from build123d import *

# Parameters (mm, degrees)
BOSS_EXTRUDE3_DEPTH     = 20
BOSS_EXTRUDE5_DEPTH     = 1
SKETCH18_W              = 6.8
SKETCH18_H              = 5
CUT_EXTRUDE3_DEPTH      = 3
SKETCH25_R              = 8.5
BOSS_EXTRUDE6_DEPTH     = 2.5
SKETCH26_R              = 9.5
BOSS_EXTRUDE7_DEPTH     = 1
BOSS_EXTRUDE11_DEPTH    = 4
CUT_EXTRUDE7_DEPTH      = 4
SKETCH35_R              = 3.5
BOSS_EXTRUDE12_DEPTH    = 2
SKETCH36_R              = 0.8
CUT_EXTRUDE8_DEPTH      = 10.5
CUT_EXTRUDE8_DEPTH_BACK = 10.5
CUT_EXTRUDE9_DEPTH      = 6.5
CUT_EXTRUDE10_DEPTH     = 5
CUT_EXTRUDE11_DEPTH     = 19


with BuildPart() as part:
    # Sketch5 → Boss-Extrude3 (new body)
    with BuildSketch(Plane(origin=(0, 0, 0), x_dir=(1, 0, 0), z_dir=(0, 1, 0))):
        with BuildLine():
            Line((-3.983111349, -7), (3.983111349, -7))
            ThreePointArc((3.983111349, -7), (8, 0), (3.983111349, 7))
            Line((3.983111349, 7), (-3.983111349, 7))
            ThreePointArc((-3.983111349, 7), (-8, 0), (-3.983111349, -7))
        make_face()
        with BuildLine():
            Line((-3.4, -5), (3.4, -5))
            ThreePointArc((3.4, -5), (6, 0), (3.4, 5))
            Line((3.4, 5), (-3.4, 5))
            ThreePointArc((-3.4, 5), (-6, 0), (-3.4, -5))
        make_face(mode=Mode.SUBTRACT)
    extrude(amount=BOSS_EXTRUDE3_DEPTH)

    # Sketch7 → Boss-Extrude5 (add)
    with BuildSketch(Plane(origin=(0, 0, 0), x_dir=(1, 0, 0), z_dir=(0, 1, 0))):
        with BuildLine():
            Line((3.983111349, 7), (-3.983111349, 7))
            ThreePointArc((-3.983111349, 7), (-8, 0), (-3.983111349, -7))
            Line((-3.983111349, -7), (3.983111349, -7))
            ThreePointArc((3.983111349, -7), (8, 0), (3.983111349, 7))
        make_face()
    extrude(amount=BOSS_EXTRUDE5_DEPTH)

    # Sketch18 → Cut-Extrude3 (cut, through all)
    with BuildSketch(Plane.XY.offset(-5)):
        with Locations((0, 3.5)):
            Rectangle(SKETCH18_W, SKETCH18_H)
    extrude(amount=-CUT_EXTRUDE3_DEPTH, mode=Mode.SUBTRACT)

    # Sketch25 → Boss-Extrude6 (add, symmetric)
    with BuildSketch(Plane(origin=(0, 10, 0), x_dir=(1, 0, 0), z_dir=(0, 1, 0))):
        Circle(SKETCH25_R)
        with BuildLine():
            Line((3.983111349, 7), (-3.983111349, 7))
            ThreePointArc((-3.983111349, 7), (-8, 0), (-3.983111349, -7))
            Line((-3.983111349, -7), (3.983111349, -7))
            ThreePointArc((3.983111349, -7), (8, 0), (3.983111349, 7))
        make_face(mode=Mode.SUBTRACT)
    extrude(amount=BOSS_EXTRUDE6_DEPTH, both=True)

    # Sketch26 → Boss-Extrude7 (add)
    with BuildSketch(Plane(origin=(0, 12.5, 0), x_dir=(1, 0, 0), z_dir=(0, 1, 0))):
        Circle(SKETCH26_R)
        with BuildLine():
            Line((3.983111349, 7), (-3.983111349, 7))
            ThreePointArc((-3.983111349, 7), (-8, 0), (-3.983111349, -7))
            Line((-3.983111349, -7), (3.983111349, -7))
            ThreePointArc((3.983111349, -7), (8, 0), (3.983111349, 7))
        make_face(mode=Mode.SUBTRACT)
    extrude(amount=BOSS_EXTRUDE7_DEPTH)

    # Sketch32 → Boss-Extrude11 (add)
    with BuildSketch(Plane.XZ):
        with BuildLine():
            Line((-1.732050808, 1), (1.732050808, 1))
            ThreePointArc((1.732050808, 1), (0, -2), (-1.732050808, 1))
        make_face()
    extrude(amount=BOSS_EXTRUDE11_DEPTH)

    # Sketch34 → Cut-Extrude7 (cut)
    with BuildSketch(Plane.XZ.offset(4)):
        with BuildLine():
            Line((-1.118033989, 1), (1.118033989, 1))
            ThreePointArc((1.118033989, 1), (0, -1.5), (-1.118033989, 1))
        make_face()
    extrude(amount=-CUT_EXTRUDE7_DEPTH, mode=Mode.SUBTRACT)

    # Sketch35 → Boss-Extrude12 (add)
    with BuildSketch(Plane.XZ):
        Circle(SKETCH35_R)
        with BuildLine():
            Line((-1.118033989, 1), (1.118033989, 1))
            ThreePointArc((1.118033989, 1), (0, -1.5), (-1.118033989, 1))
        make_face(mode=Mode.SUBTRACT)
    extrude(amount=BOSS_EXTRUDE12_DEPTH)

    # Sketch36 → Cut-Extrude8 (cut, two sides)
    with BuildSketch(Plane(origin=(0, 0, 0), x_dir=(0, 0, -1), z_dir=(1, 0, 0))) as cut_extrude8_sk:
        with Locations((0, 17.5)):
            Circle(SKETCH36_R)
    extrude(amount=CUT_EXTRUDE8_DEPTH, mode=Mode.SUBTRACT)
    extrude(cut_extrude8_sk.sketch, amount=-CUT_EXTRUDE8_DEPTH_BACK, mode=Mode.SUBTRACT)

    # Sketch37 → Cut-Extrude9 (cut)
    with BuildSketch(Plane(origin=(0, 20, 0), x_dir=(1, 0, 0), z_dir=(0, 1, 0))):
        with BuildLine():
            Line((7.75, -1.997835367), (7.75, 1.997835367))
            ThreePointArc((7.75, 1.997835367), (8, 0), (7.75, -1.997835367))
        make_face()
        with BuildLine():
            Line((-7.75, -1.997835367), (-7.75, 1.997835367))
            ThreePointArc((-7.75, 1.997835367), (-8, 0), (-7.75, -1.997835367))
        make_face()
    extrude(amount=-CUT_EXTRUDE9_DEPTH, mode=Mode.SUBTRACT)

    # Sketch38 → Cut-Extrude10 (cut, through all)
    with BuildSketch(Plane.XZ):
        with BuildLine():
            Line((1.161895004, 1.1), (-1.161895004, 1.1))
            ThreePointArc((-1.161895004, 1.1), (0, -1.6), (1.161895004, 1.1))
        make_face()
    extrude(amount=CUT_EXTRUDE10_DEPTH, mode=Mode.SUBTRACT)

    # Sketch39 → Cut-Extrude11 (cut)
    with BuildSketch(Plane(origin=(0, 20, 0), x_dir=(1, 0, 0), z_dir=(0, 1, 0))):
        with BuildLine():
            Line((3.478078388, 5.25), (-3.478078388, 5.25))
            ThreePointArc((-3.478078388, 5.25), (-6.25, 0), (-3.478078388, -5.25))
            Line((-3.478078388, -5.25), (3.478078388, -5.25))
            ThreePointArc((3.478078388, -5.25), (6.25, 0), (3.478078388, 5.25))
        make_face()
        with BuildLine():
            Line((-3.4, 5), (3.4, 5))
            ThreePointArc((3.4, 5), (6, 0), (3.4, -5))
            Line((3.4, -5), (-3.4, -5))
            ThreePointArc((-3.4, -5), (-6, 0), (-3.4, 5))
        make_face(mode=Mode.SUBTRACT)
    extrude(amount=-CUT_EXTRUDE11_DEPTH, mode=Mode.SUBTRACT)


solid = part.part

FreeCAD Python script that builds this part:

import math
import FreeCAD as App
import Part
import Sketcher

doc = App.newDocument("Part")
params = doc.addObject("Spreadsheet::Sheet", "Params")
for row, (alias, value) in enumerate([
    ("sketch1_width", "6.8 mm"),
    ("pad1_length", "20 mm"),
    ("pad2_length", "1 mm"),
    ("sketch3_height", "5 mm"),
    ("sketch3_width", "6.8 mm"),
    ("sketch4_diameter", "17 mm"),
    ("pad3_length", "5 mm"),
    ("sketch5_diameter", "19 mm"),
    ("pad4_length", "1 mm"),
    ("sketch6_radius", "2 mm"),
    ("pad5_length", "4 mm"),
    ("sketch7_radius", "1.5 mm"),
    ("pocket2_length", "4 mm"),
    ("sketch8_diameter", "7 mm"),
    ("sketch8_radius", "1.5 mm"),
    ("pad6_length", "2 mm"),
    ("sketch9_diameter", "1.6 mm"),
    ("pocket4_length", "6.5 mm"),
    ("sketch11_radius", "1.6 mm"),
    ("sketch12_width", "6.8 mm"),
    ("pocket6_length", "19 mm"),
], start=1):
    params.set(f"A{row}", alias)
    params.set(f"B{row}", "=" + value)
    params.setAlias(f"B{row}", alias)

body = doc.addObject("PartDesign::Body", "Body")

# Sketch on XZ plane
sketch1 = body.newObject("Sketcher::SketchObject", "Sketch")
sketch1.AttachmentSupport = (doc.getObject("XZ_Plane"), [""])
sketch1.MapMode = "FlatFace"
sketch1.addGeometry([
    Part.LineSegment(App.Vector(-3.983111, 7, 0), App.Vector(3.983111, 7, 0)),  # 0
    Part.ArcOfCircle(Part.Circle(App.Vector(-0.107692, 0, 0), App.Vector(0, 0, 1), 8.107692), math.radians(-59.697963), math.radians(59.697963)),  # 1
    Part.LineSegment(App.Vector(3.983111, -7, 0), App.Vector(-3.983111, -7, 0)),  # 2
    Part.ArcOfCircle(Part.Circle(App.Vector(0.107692, 0, 0), App.Vector(0, 0, 1), 8.107692), math.radians(120.302037), math.radians(239.697963)),  # 3
    Part.LineSegment(App.Vector(3.4, 5, 0), App.Vector(-3.4, 5, 0)),  # 4
    Part.ArcOfCircle(Part.Circle(App.Vector(0.107692, 0, 0), App.Vector(0, 0, 1), 6.107692), math.radians(125.051137), math.radians(234.948863)),  # 5
    Part.LineSegment(App.Vector(-3.4, -5, 0), App.Vector(3.4, -5, 0)),  # 6
    Part.ArcOfCircle(Part.Circle(App.Vector(-0.107692, 0, 0), App.Vector(0, 0, 1), 6.107692), math.radians(-54.948863), math.radians(54.948863)),  # 7
], False)
sketch1.addConstraint([
    Sketcher.Constraint("Coincident", 0, 2, 1, 2),
    Sketcher.Constraint("Coincident", 1, 1, 2, 1),
    Sketcher.Constraint("Coincident", 2, 2, 3, 2),
    Sketcher.Constraint("Coincident", 3, 1, 0, 1),
    Sketcher.Constraint("Coincident", 4, 2, 5, 1),
    Sketcher.Constraint("Coincident", 5, 2, 6, 1),
    Sketcher.Constraint("Coincident", 6, 2, 7, 1),
    Sketcher.Constraint("Coincident", 7, 2, 4, 1),
    Sketcher.Constraint("Horizontal", 0),
    Sketcher.Constraint("Horizontal", 2),
    Sketcher.Constraint("Horizontal", 4),
    Sketcher.Constraint("Horizontal", 6),
    Sketcher.Constraint("Coincident", 5, 3, 3, 3),
    Sketcher.Constraint("Coincident", 7, 3, 1, 3),
    Sketcher.Constraint("Equal", 1, 3),
    Sketcher.Constraint("Equal", 5, 7),
    Sketcher.Constraint("Symmetric", 1, 3, 3, 3, -1, 1),
    Sketcher.Constraint("Symmetric", 0, 2, 1, 1, -1),
    Sketcher.Constraint("Vertical", 4, 2, 5, 2),
    Sketcher.Constraint("DistanceX", 4, 2, 4, 1, 6.8),
    Sketcher.Constraint("DistanceY", -1, 1, 0, 2, 7.0),
    Sketcher.Constraint("DistanceY", -1, 1, 4, 2, 5.0),
    Sketcher.Constraint("Radius", 1, 8.107692),
    Sketcher.Constraint("Radius", 5, 6.107692),
])
sketch1.setExpression("Constraints[19]", "Params.sketch1_width")
pad1 = body.newObject("PartDesign::Pad", "Pad")
pad1.Profile = sketch1
pad1.setExpression("Length", "Params.pad1_length")
pad1.Reversed = True

# Sketch on XZ plane
sketch2 = body.newObject("Sketcher::SketchObject", "Sketch001")
sketch2.AttachmentSupport = (doc.getObject("XZ_Plane"), [""])
sketch2.MapMode = "FlatFace"
sketch2.addGeometry([
    Part.LineSegment(App.Vector(3.983111, -7, 0), App.Vector(-3.983111, -7, 0)),
    Part.ArcOfCircle(Part.Circle(App.Vector(0.107692, 0, 0), App.Vector(0, 0, 1), 8.107692), math.radians(120.302037), math.radians(239.697963)),
    Part.LineSegment(App.Vector(-3.983111, 7, 0), App.Vector(3.983111, 7, 0)),
    Part.ArcOfCircle(Part.Circle(App.Vector(-0.107692, 0, 0), App.Vector(0, 0, 1), 8.107692), math.radians(-59.697963), math.radians(59.697963)),
], False)
sketch2.addConstraint([
    Sketcher.Constraint("Coincident", 0, 2, 1, 2),
    Sketcher.Constraint("Coincident", 1, 1, 2, 1),
    Sketcher.Constraint("Coincident", 2, 2, 3, 2),
    Sketcher.Constraint("Coincident", 3, 1, 0, 1),
    Sketcher.Constraint("Horizontal", 0),
    Sketcher.Constraint("Horizontal", 2),
    Sketcher.Constraint("Equal", 1, 3),
    Sketcher.Constraint("Symmetric", 1, 3, 3, 3, -1, 1),
    Sketcher.Constraint("Symmetric", 0, 2, 1, 1, -1),
    Sketcher.Constraint("DistanceY", 0, 2, -1, 1, 7.0),
    Sketcher.Constraint("Radius", 1, 8.107692),
    Sketcher.Constraint("DistanceX", 0, 2, 0, 1, 7.966223),
])
pad2 = body.newObject("PartDesign::Pad", "Pad001")
pad2.Profile = sketch2
pad2.setExpression("Length", "Params.pad2_length")
pad2.Reversed = True

# Sketch on XY plane
sketch3 = body.newObject("Sketcher::SketchObject", "Sketch002")
sketch3.AttachmentSupport = (doc.getObject("XY_Plane"), [""])
sketch3.MapMode = "FlatFace"
sketch3.AttachmentOffset = App.Placement(App.Vector(0, 0, -5), App.Rotation())
sketch3.addGeometry([
    Part.LineSegment(App.Vector(-3.4, 6, 0), App.Vector(-3.4, 1, 0)),
    Part.LineSegment(App.Vector(-3.4, 1, 0), App.Vector(3.4, 1, 0)),
    Part.LineSegment(App.Vector(3.4, 1, 0), App.Vector(3.4, 6, 0)),
    Part.LineSegment(App.Vector(3.4, 6, 0), App.Vector(-3.4, 6, 0)),
], False)
sketch3.addConstraint([
    Sketcher.Constraint("Coincident", 0, 2, 1, 1),
    Sketcher.Constraint("Coincident", 1, 2, 2, 1),
    Sketcher.Constraint("Coincident", 2, 2, 3, 1),
    Sketcher.Constraint("Coincident", 3, 2, 0, 1),
    Sketcher.Constraint("Vertical", 0),
    Sketcher.Constraint("Horizontal", 1),
    Sketcher.Constraint("Vertical", 2),
    Sketcher.Constraint("Horizontal", 3),
    Sketcher.Constraint("DistanceY", 0, 2, 0, 1, 5.0),
    Sketcher.Constraint("DistanceX", 1, 1, 1, 2, 6.8),
    Sketcher.Constraint("DistanceY", -1, 1, 0, 2, 1.0),
    Sketcher.Constraint("DistanceX", 0, 2, -1, 1, 3.4),
])
sketch3.setExpression("Constraints[8]", "Params.sketch3_height")
sketch3.setExpression("Constraints[9]", "Params.sketch3_width")
pocket1 = body.newObject("PartDesign::Pocket", "Pocket")
pocket1.Profile = sketch3
pocket1.Type = "ThroughAll"

# Sketch on XZ plane
sketch4 = body.newObject("Sketcher::SketchObject", "Sketch003")
sketch4.AttachmentSupport = (doc.getObject("XZ_Plane"), [""])
sketch4.MapMode = "FlatFace"
sketch4.AttachmentOffset = App.Placement(App.Vector(0, 0, -10), App.Rotation())
sketch4.addGeometry([
    Part.Circle(App.Vector(0, 0, 0), App.Vector(0, 0, 1), 8.5),  # 0
    Part.LineSegment(App.Vector(-3.983111, -7, 0), App.Vector(3.983111, -7, 0)),  # 1
    Part.ArcOfCircle(Part.Circle(App.Vector(-0.107692, 0, 0), App.Vector(0, 0, 1), 8.107692), math.radians(-59.697963), math.radians(59.697963)),  # 2
    Part.LineSegment(App.Vector(3.983111, 7, 0), App.Vector(-3.983111, 7, 0)),  # 3
    Part.ArcOfCircle(Part.Circle(App.Vector(0.107692, 0, 0), App.Vector(0, 0, 1), 8.107692), math.radians(120.302037), math.radians(239.697963)),  # 4
], False)
sketch4.addConstraint([
    Sketcher.Constraint("Coincident", 1, 2, 2, 1),
    Sketcher.Constraint("Coincident", 2, 2, 3, 1),
    Sketcher.Constraint("Coincident", 3, 2, 4, 1),
    Sketcher.Constraint("Coincident", 4, 2, 1, 1),
    Sketcher.Constraint("Horizontal", 1),
    Sketcher.Constraint("Horizontal", 3),
    Sketcher.Constraint("Coincident", 0, 3, -1, 1),
    Sketcher.Constraint("Equal", 2, 4),
    Sketcher.Constraint("Symmetric", 2, 3, 4, 3, -1, 1),
    Sketcher.Constraint("Symmetric", 1, 2, 2, 2, -1),
    Sketcher.Constraint("Diameter", 0, 17.0),
    Sketcher.Constraint("DistanceY", 1, 2, -1, 1, 7.0),
    Sketcher.Constraint("Radius", 2, 8.107692),
    Sketcher.Constraint("DistanceX", 1, 1, 1, 2, 7.966223),
])
sketch4.setExpression("Constraints[10]", "Params.sketch4_diameter")
pad3 = body.newObject("PartDesign::Pad", "Pad002")
pad3.Profile = sketch4
pad3.setExpression("Length", "Params.pad3_length")
pad3.Midplane = True

# Sketch on XZ plane
sketch5 = body.newObject("Sketcher::SketchObject", "Sketch004")
sketch5.AttachmentSupport = (doc.getObject("XZ_Plane"), [""])
sketch5.MapMode = "FlatFace"
sketch5.AttachmentOffset = App.Placement(App.Vector(0, 0, -12.5), App.Rotation())
sketch5.addGeometry([
    Part.Circle(App.Vector(0, 0, 0), App.Vector(0, 0, 1), 9.5),  # 0
    Part.LineSegment(App.Vector(-3.983111, -7, 0), App.Vector(3.983111, -7, 0)),  # 1
    Part.ArcOfCircle(Part.Circle(App.Vector(-0.107692, 0, 0), App.Vector(0, 0, 1), 8.107692), math.radians(-59.697963), math.radians(59.697963)),  # 2
    Part.LineSegment(App.Vector(3.983111, 7, 0), App.Vector(-3.983111, 7, 0)),  # 3
    Part.ArcOfCircle(Part.Circle(App.Vector(0.107692, 0, 0), App.Vector(0, 0, 1), 8.107692), math.radians(120.302037), math.radians(239.697963)),  # 4
], False)
sketch5.addConstraint([
    Sketcher.Constraint("Coincident", 1, 2, 2, 1),
    Sketcher.Constraint("Coincident", 2, 2, 3, 1),
    Sketcher.Constraint("Coincident", 3, 2, 4, 1),
    Sketcher.Constraint("Coincident", 4, 2, 1, 1),
    Sketcher.Constraint("Horizontal", 1),
    Sketcher.Constraint("Horizontal", 3),
    Sketcher.Constraint("Coincident", 0, 3, -1, 1),
    Sketcher.Constraint("Equal", 2, 4),
    Sketcher.Constraint("Symmetric", 2, 3, 4, 3, -1, 1),
    Sketcher.Constraint("Symmetric", 1, 2, 2, 2, -1),
    Sketcher.Constraint("Diameter", 0, 19.0),
    Sketcher.Constraint("DistanceY", 1, 2, -1, 1, 7.0),
    Sketcher.Constraint("Radius", 2, 8.107692),
    Sketcher.Constraint("DistanceX", 1, 1, 1, 2, 7.966223),
])
sketch5.setExpression("Constraints[10]", "Params.sketch5_diameter")
pad4 = body.newObject("PartDesign::Pad", "Pad003")
pad4.Profile = sketch5
pad4.setExpression("Length", "Params.pad4_length")
pad4.Reversed = True

# Sketch on XZ plane
sketch6 = body.newObject("Sketcher::SketchObject", "Sketch005")
sketch6.AttachmentSupport = (doc.getObject("XZ_Plane"), [""])
sketch6.MapMode = "FlatFace"
sketch6.addGeometry([
    Part.LineSegment(App.Vector(1.732051, 1, 0), App.Vector(-1.732051, 1, 0)),
    Part.ArcOfCircle(Part.Circle(App.Vector(0, 0, 0), App.Vector(0, 0, 1), 2), math.radians(150), math.radians(390)),
], False)
sketch6.addConstraint([
    Sketcher.Constraint("Coincident", 0, 1, 1, 2),
    Sketcher.Constraint("Coincident", 1, 1, 0, 2),
    Sketcher.Constraint("Horizontal", 0),
    Sketcher.Constraint("Coincident", 1, 3, -1, 1),
    Sketcher.Constraint("Radius", 1, 2.0),
    Sketcher.Constraint("DistanceY", -1, 1, 0, 1, 1.0),
])
sketch6.setExpression("Constraints[4]", "Params.sketch6_radius")
pad5 = body.newObject("PartDesign::Pad", "Pad004")
pad5.Profile = sketch6
pad5.setExpression("Length", "Params.pad5_length")

# Sketch on XZ plane
sketch7 = body.newObject("Sketcher::SketchObject", "Sketch006")
sketch7.AttachmentSupport = (doc.getObject("XZ_Plane"), [""])
sketch7.MapMode = "FlatFace"
sketch7.AttachmentOffset = App.Placement(App.Vector(0, 0, 4), App.Rotation())
sketch7.addGeometry([
    Part.LineSegment(App.Vector(1.118034, 1, 0), App.Vector(-1.118034, 1, 0)),
    Part.ArcOfCircle(Part.Circle(App.Vector(0, 0, 0), App.Vector(0, 0, 1), 1.5), math.radians(138.189685), math.radians(401.810315)),
], False)
sketch7.addConstraint([
    Sketcher.Constraint("Coincident", 0, 1, 1, 2),
    Sketcher.Constraint("Coincident", 1, 1, 0, 2),
    Sketcher.Constraint("Horizontal", 0),
    Sketcher.Constraint("Coincident", 1, 3, -1, 1),
    Sketcher.Constraint("Radius", 1, 1.5),
    Sketcher.Constraint("DistanceY", -1, 1, 0, 1, 1.0),
])
sketch7.setExpression("Constraints[4]", "Params.sketch7_radius")
pocket2 = body.newObject("PartDesign::Pocket", "Pocket001")
pocket2.Profile = sketch7
pocket2.setExpression("Length", "Params.pocket2_length")

# Sketch on XZ plane
sketch8 = body.newObject("Sketcher::SketchObject", "Sketch007")
sketch8.AttachmentSupport = (doc.getObject("XZ_Plane"), [""])
sketch8.MapMode = "FlatFace"
sketch8.addGeometry([
    Part.Circle(App.Vector(0, 0, 0), App.Vector(0, 0, 1), 3.5),
    Part.ArcOfCircle(Part.Circle(App.Vector(0, 0, 0), App.Vector(0, 0, 1), 1.5), math.radians(138.189685), math.radians(401.810315)),
    Part.LineSegment(App.Vector(-1.118034, 1, 0), App.Vector(1.118034, 1, 0)),
], False)
sketch8.addConstraint([
    Sketcher.Constraint("Coincident", 1, 1, 2, 1),
    Sketcher.Constraint("Coincident", 2, 2, 1, 2),
    Sketcher.Constraint("Horizontal", 2),
    Sketcher.Constraint("Coincident", 0, 3, -1, 1),
    Sketcher.Constraint("Coincident", 1, 3, -1, 1),
    Sketcher.Constraint("Diameter", 0, 7.0),
    Sketcher.Constraint("Radius", 1, 1.5),
    Sketcher.Constraint("DistanceY", -1, 1, 1, 1, 1.0),
])
sketch8.setExpression("Constraints[5]", "Params.sketch8_diameter")
sketch8.setExpression("Constraints[6]", "Params.sketch8_radius")
pad6 = body.newObject("PartDesign::Pad", "Pad005")
pad6.Profile = sketch8
pad6.setExpression("Length", "Params.pad6_length")

# Sketch on YZ plane
sketch9 = body.newObject("Sketcher::SketchObject", "Sketch008")
sketch9.AttachmentSupport = (doc.getObject("YZ_Plane"), [""])
sketch9.MapMode = "FlatFace"
sketch9.addGeometry(Part.Circle(App.Vector(17.5, 0, 0), App.Vector(0, 0, 1), 0.8), False)
sketch9.addConstraint([
    Sketcher.Constraint("PointOnObject", 0, 3, -1),
    Sketcher.Constraint("Diameter", 0, 1.6),
    Sketcher.Constraint("DistanceX", -1, 1, 0, 3, 17.5),
])
sketch9.setExpression("Constraints[1]", "Params.sketch9_diameter")
pocket3 = body.newObject("PartDesign::Pocket", "Pocket002")
pocket3.Profile = sketch9
pocket3.Type = "ThroughAll"
pocket3.Midplane = True

# Sketch on XZ plane
sketch10 = body.newObject("Sketcher::SketchObject", "Sketch009")
sketch10.AttachmentSupport = (doc.getObject("XZ_Plane"), [""])
sketch10.MapMode = "FlatFace"
sketch10.AttachmentOffset = App.Placement(App.Vector(0, 0, -20), App.Rotation())
sketch10.addGeometry([
    Part.LineSegment(App.Vector(7.75, -1.997835, 0), App.Vector(7.75, 1.997835, 0)),
    Part.ArcOfCircle(Part.Circle(App.Vector(-0.107692, 0, 0), App.Vector(0, 0, 1), 8.107692), math.radians(-14.265314), math.radians(14.265314)),
    Part.LineSegment(App.Vector(-7.75, 1.997835, 0), App.Vector(-7.75, -1.997835, 0)),
    Part.ArcOfCircle(Part.Circle(App.Vector(0.107692, 0, 0), App.Vector(0, 0, 1), 8.107692), math.radians(165.734686), math.radians(194.265314)),
], False)
sketch10.addConstraint([
    Sketcher.Constraint("Coincident", 0, 1, 1, 1),
    Sketcher.Constraint("Coincident", 1, 2, 0, 2),
    Sketcher.Constraint("Coincident", 2, 1, 3, 1),
    Sketcher.Constraint("Coincident", 3, 2, 2, 2),
    Sketcher.Constraint("Vertical", 0),
    Sketcher.Constraint("Vertical", 2),
    Sketcher.Constraint("Equal", 1, 3),
    Sketcher.Constraint("Symmetric", 1, 3, 3, 3, -1, 1),
    Sketcher.Constraint("Symmetric", 1, 2, 2, 1, -2),
    Sketcher.Constraint("DistanceX", 2, 1, 1, 2, 15.5),
    Sketcher.Constraint("Radius", 1, 8.107692),
    Sketcher.Constraint("DistanceY", 0, 1, 0, 2, 3.995671),
])
pocket4 = body.newObject("PartDesign::Pocket", "Pocket003")
pocket4.Profile = sketch10
pocket4.setExpression("Length", "Params.pocket4_length")
pocket4.Reversed = True

# Sketch on XZ plane
sketch11 = body.newObject("Sketcher::SketchObject", "Sketch010")
sketch11.AttachmentSupport = (doc.getObject("XZ_Plane"), [""])
sketch11.MapMode = "FlatFace"
sketch11.addGeometry([
    Part.LineSegment(App.Vector(1.161895, 1.1, 0), App.Vector(-1.161895, 1.1, 0)),
    Part.ArcOfCircle(Part.Circle(App.Vector(0, 0, 0), App.Vector(0, 0, 1), 1.6), math.radians(136.567463), math.radians(403.432537)),
], False)
sketch11.addConstraint([
    Sketcher.Constraint("Coincident", 0, 1, 1, 2),
    Sketcher.Constraint("Coincident", 1, 1, 0, 2),
    Sketcher.Constraint("Horizontal", 0),
    Sketcher.Constraint("Coincident", 1, 3, -1, 1),
    Sketcher.Constraint("Radius", 1, 1.6),
    Sketcher.Constraint("DistanceY", -1, 1, 0, 1, 1.1),
])
sketch11.setExpression("Constraints[4]", "Params.sketch11_radius")
pocket5 = body.newObject("PartDesign::Pocket", "Pocket004")
pocket5.Profile = sketch11
pocket5.Type = "ThroughAll"
pocket5.Reversed = True

# Sketch on XZ plane
sketch12 = body.newObject("Sketcher::SketchObject", "Sketch011")
sketch12.AttachmentSupport = (doc.getObject("XZ_Plane"), [""])
sketch12.MapMode = "FlatFace"
sketch12.AttachmentOffset = App.Placement(App.Vector(0, 0, -20), App.Rotation())
sketch12.addGeometry([
    Part.LineSegment(App.Vector(3.478078, -5.25, 0), App.Vector(-3.478078, -5.25, 0)),  # 0
    Part.ArcOfCircle(Part.Circle(App.Vector(0.107692, 0, 0), App.Vector(0, 0, 1), 6.357692), math.radians(124.33323), math.radians(235.66677)),  # 1
    Part.LineSegment(App.Vector(-3.478078, 5.25, 0), App.Vector(3.478078, 5.25, 0)),  # 2
    Part.ArcOfCircle(Part.Circle(App.Vector(-0.107692, 0, 0), App.Vector(0, 0, 1), 6.357692), math.radians(-55.66677), math.radians(55.66677)),  # 3
    Part.ArcOfCircle(Part.Circle(App.Vector(0.107692, 0, 0), App.Vector(0, 0, 1), 6.107692), math.radians(125.051137), math.radians(234.948863)),  # 4
    Part.LineSegment(App.Vector(-3.4, -5, 0), App.Vector(3.4, -5, 0)),  # 5
    Part.ArcOfCircle(Part.Circle(App.Vector(-0.107692, 0, 0), App.Vector(0, 0, 1), 6.107692), math.radians(-54.948863), math.radians(54.948863)),  # 6
    Part.LineSegment(App.Vector(3.4, 5, 0), App.Vector(-3.4, 5, 0)),  # 7
], False)
sketch12.addConstraint([
    Sketcher.Constraint("Coincident", 0, 2, 1, 2),
    Sketcher.Constraint("Coincident", 1, 1, 2, 1),
    Sketcher.Constraint("Coincident", 2, 2, 3, 2),
    Sketcher.Constraint("Coincident", 3, 1, 0, 1),
    Sketcher.Constraint("Coincident", 4, 2, 5, 1),
    Sketcher.Constraint("Coincident", 5, 2, 6, 1),
    Sketcher.Constraint("Coincident", 6, 2, 7, 1),
    Sketcher.Constraint("Coincident", 7, 2, 4, 1),
    Sketcher.Constraint("Horizontal", 0),
    Sketcher.Constraint("Horizontal", 2),
    Sketcher.Constraint("Horizontal", 5),
    Sketcher.Constraint("Horizontal", 7),
    Sketcher.Constraint("Coincident", 4, 3, 1, 3),
    Sketcher.Constraint("Coincident", 6, 3, 3, 3),
    Sketcher.Constraint("Equal", 1, 3),
    Sketcher.Constraint("Equal", 4, 6),
    Sketcher.Constraint("Symmetric", 1, 3, 3, 3, -1, 1),
    Sketcher.Constraint("Symmetric", 0, 2, 1, 1, -1),
    Sketcher.Constraint("Vertical", 5, 2, 6, 2),
    Sketcher.Constraint("DistanceX", 5, 1, 5, 2, 6.8),
    Sketcher.Constraint("DistanceY", 4, 2, -1, 1, 5.0),
    Sketcher.Constraint("DistanceY", 0, 2, 1, 1, 10.5),
    Sketcher.Constraint("Radius", 1, 6.357692),
    Sketcher.Constraint("Radius", 4, 6.107692),
])
sketch12.setExpression("Constraints[19]", "Params.sketch12_width")
pocket6 = body.newObject("PartDesign::Pocket", "Pocket005")
pocket6.Profile = sketch12
pocket6.setExpression("Length", "Params.pocket6_length")
pocket6.Reversed = True

doc.recompute()
